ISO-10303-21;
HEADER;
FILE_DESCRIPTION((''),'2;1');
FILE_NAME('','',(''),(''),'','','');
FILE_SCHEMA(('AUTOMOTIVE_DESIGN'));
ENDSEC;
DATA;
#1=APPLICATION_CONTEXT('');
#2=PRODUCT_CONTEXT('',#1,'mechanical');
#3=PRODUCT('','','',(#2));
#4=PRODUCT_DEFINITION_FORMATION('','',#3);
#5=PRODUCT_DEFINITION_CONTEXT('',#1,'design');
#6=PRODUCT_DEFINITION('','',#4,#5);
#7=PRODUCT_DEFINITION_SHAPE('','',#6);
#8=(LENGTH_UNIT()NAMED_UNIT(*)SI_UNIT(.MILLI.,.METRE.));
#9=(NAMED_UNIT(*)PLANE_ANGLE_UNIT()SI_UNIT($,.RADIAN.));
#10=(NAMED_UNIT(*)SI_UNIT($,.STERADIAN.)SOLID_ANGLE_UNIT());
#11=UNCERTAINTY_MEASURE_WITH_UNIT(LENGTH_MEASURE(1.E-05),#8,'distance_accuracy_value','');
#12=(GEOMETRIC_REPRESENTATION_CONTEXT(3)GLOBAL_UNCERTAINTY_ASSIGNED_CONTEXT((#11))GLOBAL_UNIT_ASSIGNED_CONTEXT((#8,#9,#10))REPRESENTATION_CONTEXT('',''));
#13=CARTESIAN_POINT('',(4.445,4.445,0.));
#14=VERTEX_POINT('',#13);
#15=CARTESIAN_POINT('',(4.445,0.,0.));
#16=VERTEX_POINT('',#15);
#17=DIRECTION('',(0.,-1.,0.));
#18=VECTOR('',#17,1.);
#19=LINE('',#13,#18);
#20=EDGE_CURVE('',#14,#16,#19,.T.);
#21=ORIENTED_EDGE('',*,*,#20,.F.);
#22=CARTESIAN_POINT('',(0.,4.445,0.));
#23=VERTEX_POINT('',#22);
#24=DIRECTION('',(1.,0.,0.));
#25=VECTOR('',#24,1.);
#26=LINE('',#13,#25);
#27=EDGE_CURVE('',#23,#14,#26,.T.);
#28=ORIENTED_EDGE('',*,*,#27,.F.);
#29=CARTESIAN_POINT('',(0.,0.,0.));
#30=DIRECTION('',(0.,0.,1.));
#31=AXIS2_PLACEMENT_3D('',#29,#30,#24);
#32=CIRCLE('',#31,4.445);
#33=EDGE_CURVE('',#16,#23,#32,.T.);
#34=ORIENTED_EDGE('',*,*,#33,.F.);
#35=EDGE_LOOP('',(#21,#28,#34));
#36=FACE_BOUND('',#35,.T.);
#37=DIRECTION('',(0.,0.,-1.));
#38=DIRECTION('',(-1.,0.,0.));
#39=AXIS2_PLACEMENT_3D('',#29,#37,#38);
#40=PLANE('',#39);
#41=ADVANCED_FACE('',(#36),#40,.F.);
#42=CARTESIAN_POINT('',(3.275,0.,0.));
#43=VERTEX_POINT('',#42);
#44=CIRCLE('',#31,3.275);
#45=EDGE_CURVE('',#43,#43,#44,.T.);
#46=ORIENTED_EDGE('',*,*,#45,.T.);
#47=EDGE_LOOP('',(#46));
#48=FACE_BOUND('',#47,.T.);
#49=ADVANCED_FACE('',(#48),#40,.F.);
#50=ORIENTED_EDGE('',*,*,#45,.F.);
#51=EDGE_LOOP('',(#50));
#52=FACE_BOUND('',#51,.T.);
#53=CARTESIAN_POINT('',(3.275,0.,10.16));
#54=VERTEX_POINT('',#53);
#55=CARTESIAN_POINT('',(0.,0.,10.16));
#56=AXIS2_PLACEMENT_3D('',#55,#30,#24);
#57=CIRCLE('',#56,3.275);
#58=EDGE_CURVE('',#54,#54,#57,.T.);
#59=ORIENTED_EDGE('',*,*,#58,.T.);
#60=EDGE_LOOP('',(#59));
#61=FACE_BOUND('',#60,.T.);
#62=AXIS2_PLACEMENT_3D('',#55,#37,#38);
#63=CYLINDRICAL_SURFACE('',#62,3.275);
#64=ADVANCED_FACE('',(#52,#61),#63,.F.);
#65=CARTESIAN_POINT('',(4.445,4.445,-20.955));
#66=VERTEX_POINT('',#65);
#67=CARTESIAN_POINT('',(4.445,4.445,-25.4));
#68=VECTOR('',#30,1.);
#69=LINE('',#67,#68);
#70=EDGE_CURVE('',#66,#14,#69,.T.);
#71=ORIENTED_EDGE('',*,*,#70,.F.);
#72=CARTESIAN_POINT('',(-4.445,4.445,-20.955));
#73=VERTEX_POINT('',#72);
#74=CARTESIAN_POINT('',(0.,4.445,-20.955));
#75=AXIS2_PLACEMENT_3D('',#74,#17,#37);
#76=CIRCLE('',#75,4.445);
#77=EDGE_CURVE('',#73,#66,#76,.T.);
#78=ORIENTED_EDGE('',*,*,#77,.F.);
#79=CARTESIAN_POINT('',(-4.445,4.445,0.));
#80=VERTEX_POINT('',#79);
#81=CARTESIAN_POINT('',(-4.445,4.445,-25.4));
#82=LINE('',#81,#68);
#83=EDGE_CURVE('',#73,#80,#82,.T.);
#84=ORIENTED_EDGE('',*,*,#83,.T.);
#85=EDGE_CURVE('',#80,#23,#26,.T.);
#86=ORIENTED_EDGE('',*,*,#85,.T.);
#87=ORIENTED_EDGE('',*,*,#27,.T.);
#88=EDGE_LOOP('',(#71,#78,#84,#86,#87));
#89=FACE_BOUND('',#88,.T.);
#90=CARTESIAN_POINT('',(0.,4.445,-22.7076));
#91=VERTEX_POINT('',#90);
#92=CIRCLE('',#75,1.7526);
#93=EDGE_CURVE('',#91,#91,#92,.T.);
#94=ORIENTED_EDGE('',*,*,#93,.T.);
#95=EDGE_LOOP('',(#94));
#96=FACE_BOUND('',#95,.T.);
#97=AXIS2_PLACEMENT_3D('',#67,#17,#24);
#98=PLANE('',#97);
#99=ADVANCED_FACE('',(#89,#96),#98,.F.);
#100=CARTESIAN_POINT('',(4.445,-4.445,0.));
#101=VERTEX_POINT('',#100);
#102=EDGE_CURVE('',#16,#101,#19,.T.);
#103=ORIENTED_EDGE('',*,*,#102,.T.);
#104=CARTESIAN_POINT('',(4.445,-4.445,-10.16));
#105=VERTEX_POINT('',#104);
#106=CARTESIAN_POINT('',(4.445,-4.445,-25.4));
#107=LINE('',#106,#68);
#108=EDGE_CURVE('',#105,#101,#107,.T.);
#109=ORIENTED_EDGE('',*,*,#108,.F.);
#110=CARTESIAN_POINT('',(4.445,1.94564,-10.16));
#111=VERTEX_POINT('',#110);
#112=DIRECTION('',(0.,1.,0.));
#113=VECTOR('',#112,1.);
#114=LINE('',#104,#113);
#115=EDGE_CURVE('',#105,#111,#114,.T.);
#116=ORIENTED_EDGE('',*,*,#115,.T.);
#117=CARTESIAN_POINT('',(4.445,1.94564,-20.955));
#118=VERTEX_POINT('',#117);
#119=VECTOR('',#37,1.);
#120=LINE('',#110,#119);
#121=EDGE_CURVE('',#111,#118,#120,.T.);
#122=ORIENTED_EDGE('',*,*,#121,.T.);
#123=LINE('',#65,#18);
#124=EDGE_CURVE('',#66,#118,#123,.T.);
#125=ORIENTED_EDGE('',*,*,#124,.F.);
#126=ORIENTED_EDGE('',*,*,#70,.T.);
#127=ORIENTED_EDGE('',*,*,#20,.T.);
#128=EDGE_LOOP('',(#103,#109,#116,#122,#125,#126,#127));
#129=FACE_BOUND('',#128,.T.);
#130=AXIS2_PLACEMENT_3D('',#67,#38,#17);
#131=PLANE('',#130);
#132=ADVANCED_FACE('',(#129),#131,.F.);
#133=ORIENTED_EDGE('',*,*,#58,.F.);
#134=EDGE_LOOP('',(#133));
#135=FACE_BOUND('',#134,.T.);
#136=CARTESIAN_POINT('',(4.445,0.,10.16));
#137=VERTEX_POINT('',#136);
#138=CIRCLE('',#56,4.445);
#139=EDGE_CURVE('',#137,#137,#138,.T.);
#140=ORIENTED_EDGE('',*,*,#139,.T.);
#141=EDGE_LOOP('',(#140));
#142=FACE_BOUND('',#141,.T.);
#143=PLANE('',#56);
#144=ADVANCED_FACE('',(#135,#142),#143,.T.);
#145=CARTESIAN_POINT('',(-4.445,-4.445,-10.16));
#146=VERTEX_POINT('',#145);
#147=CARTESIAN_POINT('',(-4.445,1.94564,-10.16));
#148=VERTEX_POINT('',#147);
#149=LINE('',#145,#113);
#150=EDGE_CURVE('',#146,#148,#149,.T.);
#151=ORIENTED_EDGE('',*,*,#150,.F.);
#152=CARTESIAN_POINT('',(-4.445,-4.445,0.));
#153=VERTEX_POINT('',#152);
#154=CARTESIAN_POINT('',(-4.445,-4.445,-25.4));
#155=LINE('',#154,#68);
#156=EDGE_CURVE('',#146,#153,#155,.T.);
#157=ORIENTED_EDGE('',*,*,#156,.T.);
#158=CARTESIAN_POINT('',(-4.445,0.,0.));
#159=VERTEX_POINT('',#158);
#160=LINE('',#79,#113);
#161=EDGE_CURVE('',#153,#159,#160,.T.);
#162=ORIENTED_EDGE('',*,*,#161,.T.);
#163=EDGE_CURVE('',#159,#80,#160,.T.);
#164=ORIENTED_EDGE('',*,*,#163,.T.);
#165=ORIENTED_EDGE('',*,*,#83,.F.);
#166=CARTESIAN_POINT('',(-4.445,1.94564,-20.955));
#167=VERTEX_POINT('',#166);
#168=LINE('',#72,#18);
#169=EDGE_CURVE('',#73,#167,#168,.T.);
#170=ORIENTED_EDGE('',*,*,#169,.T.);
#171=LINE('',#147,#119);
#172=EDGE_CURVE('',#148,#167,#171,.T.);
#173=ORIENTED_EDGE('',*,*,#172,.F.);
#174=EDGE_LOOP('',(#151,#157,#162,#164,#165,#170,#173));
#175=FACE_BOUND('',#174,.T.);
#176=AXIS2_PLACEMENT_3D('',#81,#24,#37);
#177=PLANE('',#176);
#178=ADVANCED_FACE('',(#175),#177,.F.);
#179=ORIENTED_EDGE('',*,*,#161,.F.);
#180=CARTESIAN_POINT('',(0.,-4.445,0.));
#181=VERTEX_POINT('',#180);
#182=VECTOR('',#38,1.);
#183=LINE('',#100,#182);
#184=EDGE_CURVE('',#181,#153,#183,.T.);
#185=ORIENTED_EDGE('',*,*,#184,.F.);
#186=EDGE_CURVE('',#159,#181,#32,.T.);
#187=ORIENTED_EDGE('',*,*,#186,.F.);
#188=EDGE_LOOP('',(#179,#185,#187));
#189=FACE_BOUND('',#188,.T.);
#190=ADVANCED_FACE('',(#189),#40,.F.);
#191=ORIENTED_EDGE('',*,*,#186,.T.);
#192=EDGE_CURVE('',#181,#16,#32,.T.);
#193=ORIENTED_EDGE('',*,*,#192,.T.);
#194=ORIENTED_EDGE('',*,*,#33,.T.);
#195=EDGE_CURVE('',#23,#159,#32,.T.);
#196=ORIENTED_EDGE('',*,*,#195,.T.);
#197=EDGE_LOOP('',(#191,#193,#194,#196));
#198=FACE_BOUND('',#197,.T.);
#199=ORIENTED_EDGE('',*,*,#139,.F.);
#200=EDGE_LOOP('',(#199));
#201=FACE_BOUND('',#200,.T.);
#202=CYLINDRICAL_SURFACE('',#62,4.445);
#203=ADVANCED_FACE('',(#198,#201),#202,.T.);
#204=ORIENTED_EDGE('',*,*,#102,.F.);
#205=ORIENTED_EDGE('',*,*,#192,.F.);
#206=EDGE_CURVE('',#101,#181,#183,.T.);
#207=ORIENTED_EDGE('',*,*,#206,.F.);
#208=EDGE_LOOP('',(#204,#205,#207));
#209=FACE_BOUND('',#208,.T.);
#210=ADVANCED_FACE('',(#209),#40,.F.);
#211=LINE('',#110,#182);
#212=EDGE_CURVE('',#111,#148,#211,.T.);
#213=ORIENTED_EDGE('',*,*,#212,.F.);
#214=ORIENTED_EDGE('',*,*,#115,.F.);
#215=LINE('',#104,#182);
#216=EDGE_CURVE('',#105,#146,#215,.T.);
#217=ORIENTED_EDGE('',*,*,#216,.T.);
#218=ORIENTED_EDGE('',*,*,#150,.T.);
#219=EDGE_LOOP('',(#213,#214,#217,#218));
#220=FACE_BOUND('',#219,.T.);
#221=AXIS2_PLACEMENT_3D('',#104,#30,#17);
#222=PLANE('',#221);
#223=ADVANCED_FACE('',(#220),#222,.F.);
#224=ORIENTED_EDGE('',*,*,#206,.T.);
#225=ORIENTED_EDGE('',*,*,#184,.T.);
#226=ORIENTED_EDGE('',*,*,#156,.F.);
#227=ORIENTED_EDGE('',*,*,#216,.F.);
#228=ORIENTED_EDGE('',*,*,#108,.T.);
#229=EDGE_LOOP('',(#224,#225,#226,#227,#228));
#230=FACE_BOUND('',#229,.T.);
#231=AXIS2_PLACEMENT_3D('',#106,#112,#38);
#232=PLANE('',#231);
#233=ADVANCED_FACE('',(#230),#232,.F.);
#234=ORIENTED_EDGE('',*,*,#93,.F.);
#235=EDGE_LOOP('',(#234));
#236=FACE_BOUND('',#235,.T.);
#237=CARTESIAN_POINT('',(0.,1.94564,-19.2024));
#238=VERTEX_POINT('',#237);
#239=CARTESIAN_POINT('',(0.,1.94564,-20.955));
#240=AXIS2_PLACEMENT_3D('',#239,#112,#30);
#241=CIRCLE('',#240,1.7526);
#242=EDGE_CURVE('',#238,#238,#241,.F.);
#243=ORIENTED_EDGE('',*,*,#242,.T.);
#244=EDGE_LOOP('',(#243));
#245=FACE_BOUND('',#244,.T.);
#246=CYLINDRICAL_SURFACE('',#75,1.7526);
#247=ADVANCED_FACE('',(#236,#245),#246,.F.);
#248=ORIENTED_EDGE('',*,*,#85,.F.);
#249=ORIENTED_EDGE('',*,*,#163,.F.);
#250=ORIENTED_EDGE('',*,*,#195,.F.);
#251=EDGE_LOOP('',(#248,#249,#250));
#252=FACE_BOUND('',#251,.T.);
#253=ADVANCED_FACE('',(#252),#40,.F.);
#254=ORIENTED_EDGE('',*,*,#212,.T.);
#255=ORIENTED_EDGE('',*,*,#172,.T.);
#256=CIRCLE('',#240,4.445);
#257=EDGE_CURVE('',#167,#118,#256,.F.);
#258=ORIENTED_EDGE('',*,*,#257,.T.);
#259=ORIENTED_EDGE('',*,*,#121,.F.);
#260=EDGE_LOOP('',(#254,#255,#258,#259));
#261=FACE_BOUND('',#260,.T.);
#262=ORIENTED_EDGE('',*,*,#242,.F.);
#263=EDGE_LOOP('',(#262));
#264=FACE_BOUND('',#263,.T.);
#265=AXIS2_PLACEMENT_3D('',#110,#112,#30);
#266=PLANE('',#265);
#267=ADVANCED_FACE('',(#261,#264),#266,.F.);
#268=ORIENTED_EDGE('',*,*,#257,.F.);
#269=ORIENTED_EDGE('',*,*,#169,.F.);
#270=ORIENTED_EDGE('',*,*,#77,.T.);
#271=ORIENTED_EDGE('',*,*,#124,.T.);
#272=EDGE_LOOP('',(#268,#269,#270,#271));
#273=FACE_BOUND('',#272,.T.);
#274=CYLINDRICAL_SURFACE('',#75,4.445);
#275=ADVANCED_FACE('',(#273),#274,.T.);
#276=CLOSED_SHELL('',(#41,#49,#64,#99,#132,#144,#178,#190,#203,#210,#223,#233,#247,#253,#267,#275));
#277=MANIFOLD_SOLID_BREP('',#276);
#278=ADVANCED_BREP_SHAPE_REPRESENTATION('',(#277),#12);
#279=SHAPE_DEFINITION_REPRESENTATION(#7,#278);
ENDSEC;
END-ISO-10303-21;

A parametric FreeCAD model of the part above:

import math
import FreeCAD as App
import Part
import Sketcher
Q = App.Units.Quantity


def add_polygon(sketch, points):
    """Adds a closed chain of lines whose ends are joined by coincident constraints."""
    first, n = sketch.GeometryCount, len(points)
    for a, b in zip(points, points[1:] + points[:1]):
        sketch.addGeometry(Part.LineSegment(App.Vector(*a, 0), App.Vector(*b, 0)), False)
    for i in range(n):
        sketch.addConstraint(Sketcher.Constraint("Coincident", first + i, 2, first + (i + 1) % n, 1))

doc = App.newDocument("Part")
params = doc.addObject("Spreadsheet::Sheet", "Params")
for row, (alias, value) in enumerate([
    ("sketch1_diameter", "0.35 in"),
    ("pad1_length", "0.4 in"),
    ("sketch2_width", "0.35 in"),
    ("pad2_length", "1 in"),
    ("sketch3_diameter", "0.138 in"),
    ("sketch3_radius", "0.175 in"),
    ("sketch4_height", "0.6 in"),
], start=1):
    params.set(f"A{row}", alias)
    params.set(f"B{row}", "=" + value)
    params.setAlias(f"B{row}", alias)

body = doc.addObject("PartDesign::Body", "Body")

# Sketch on XY plane
sketch1 = body.newObject("Sketcher::SketchObject", "Sketch")
sketch1.AttachmentSupport = (doc.getObject("XY_Plane"), [""])
sketch1.MapMode = "FlatFace"
sketch1.addGeometry(Part.Circle(App.Vector(0, 0, 0), App.Vector(0, 0, 1), 4.4), False)
sketch1.addGeometry(Part.Circle(App.Vector(0, 0, 0), App.Vector(0, 0, 1), 3.3), False)
sketch1.addConstraint(Sketcher.Constraint("Coincident", 0, 3, -1, 1))
sketch1.addConstraint(Sketcher.Constraint("Coincident", 1, 3, -1, 1))
sketch1.addConstraint(Sketcher.Constraint("Diameter", 0, Q("0.35 in")))
sketch1.addConstraint(Sketcher.Constraint("Diameter", 1, Q("6.55 mm")))
sketch1.setExpression("Constraints[2]", "Params.sketch1_diameter")
pad1 = body.newObject("PartDesign::Pad", "Pad")
pad1.Profile = sketch1
pad1.setExpression("Length", "Params.pad1_length")

# Sketch on XY plane
sketch2 = body.newObject("Sketcher::SketchObject", "Sketch001")
sketch2.AttachmentSupport = (doc.getObject("XY_Plane"), [""])
sketch2.MapMode = "FlatFace"
add_polygon(sketch2, [(4, 4), (4, -4), (-4, -4), (-4, 4)])  # lines 0-3
sketch2.addConstraint(Sketcher.Constraint("Vertical", 0))
sketch2.addConstraint(Sketcher.Constraint("Horizontal", 1))
sketch2.addConstraint(Sketcher.Constraint("Vertical", 2))
sketch2.addConstraint(Sketcher.Constraint("Horizontal", 3))
sketch2.addConstraint(Sketcher.Constraint("Symmetric", 0, 2, 2, 2, -1, 1))
sketch2.addConstraint(Sketcher.Constraint("Equal", 3, 0))
sketch2.addConstraint(Sketcher.Constraint("DistanceX", 1, 2, 1, 1, Q("0.35 in")))
sketch2.setExpression("Constraints[10]", "Params.sketch2_width")
pad2 = body.newObject("PartDesign::Pad", "Pad001")
pad2.Profile = sketch2
pad2.setExpression("Length", "Params.pad2_length")
pad2.Reversed = True

# Sketch on XZ plane
sketch3 = body.newObject("Sketcher::SketchObject", "Sketch002")
sketch3.AttachmentSupport = (doc.getObject("XZ_Plane"), [""])
sketch3.MapMode = "FlatFace"
sketch3.AttachmentOffset = App.Placement(App.Vector(0, 0, 0.175 * 25.4), App.Rotation())
sketch3.addGeometry(Part.LineSegment(App.Vector(4.4, -25.4, 0), App.Vector(4.4, -21, 0)), False)
sketch3.addGeometry(Part.ArcOfCircle(Part.Circle(App.Vector(0, -21, 0), App.Vector(0, 0, 1), 4.4), math.radians(-90), math.radians(0)), False)
sketch3.addGeometry(Part.LineSegment(App.Vector(0, -25.4, 0), App.Vector(4.4, -25.4, 0)), False)
sketch3.addGeometry(Part.ArcOfCircle(Part.Circle(App.Vector(0, -21, 0), App.Vector(0, 0, 1), 4.4), math.radians(-180), math.radians(-90)), False)
sketch3.addGeometry(Part.LineSegment(App.Vector(-4.4, -21, 0), App.Vector(-4.4, -25.4, 0)), False)
sketch3.addGeometry(Part.LineSegment(App.Vector(-4.4, -25.4, 0), App.Vector(0, -25.4, 0)), False)
sketch3.addGeometry(Part.Circle(App.Vector(0, -21, 0), App.Vector(0, 0, 1), 1.8), False)
sketch3.addConstraint(Sketcher.Constraint("Tangent", 0, 2, 1, 2))
sketch3.addConstraint(Sketcher.Constraint("Tangent", 1, 1, 2, 1))
sketch3.addConstraint(Sketcher.Constraint("Coincident", 2, 2, 0, 1))
sketch3.addConstraint(Sketcher.Constraint("Tangent", 3, 1, 4, 1))
sketch3.addConstraint(Sketcher.Constraint("Coincident", 4, 2, 5, 1))
sketch3.addConstraint(Sketcher.Constraint("Tangent", 5, 2, 3, 2))
sketch3.addConstraint(Sketcher.Constraint("Vertical", 0))
sketch3.addConstraint(Sketcher.Constraint("Horizontal", 2))
sketch3.addConstraint(Sketcher.Constraint("Vertical", 4))
sketch3.addConstraint(Sketcher.Constraint("Horizontal", 5))
sketch3.addConstraint(Sketcher.Constraint("Coincident", 3, 3, 1, 3))
sketch3.addConstraint(Sketcher.Constraint("Coincident", 6, 3, 1, 3))
sketch3.addConstraint(Sketcher.Constraint("Equal", 1, 3))
sketch3.addConstraint(Sketcher.Constraint("PointOnObject", 1, 3, -2))
sketch3.addConstraint(Sketcher.Constraint("Diameter", 6, Q("0.138 in")))
sketch3.addConstraint(Sketcher.Constraint("DistanceY", 1, 1, -1, 1, Q("1 in")))
sketch3.addConstraint(Sketcher.Constraint("Radius", 1, Q("0.175 in")))
sketch3.setExpression("Constraints[14]", "Params.sketch3_diameter")
sketch3.setExpression("Constraints[16]", "Params.sketch3_radius")
pocket1 = body.newObject("PartDesign::Pocket", "Pocket")
pocket1.Profile = sketch3
pocket1.Type = "ThroughAll"

# Sketch on YZ plane
sketch4 = body.newObject("Sketcher::SketchObject", "Sketch003")
sketch4.AttachmentSupport = (doc.getObject("YZ_Plane"), [""])
sketch4.MapMode = "FlatFace"
sketch4.AttachmentOffset = App.Placement(App.Vector(0, 0, -0.175 * 25.4), App.Rotation())
add_polygon(sketch4, [(2, -25), (-4, -25), (-4, -10), (2, -10)])  # lines 0-3
sketch4.addConstraint(Sketcher.Constraint("Horizontal", 0))
sketch4.addConstraint(Sketcher.Constraint("Vertical", 1))
sketch4.addConstraint(Sketcher.Constraint("Horizontal", 2))
sketch4.addConstraint(Sketcher.Constraint("Vertical", 3))
sketch4.addConstraint(Sketcher.Constraint("DistanceY", 1, 1, 1, 2, Q("0.6 in")))
sketch4.addConstraint(Sketcher.Constraint("DistanceY", 0, 2, -1, 1, Q("1 in")))
sketch4.addConstraint(Sketcher.Constraint("DistanceX", 0, 2, 0, 1, Q("0.2516 in")))
sketch4.addConstraint(Sketcher.Constraint("DistanceX", 0, 2, -1, 1, Q("0.175 in")))
sketch4.setExpression("Constraints[8]", "Params.sketch4_height")
pocket2 = body.newObject("PartDesign::Pocket", "Pocket001")
pocket2.Profile = sketch4
pocket2.Type = "ThroughAll"
pocket2.Reversed = True

doc.recompute()
